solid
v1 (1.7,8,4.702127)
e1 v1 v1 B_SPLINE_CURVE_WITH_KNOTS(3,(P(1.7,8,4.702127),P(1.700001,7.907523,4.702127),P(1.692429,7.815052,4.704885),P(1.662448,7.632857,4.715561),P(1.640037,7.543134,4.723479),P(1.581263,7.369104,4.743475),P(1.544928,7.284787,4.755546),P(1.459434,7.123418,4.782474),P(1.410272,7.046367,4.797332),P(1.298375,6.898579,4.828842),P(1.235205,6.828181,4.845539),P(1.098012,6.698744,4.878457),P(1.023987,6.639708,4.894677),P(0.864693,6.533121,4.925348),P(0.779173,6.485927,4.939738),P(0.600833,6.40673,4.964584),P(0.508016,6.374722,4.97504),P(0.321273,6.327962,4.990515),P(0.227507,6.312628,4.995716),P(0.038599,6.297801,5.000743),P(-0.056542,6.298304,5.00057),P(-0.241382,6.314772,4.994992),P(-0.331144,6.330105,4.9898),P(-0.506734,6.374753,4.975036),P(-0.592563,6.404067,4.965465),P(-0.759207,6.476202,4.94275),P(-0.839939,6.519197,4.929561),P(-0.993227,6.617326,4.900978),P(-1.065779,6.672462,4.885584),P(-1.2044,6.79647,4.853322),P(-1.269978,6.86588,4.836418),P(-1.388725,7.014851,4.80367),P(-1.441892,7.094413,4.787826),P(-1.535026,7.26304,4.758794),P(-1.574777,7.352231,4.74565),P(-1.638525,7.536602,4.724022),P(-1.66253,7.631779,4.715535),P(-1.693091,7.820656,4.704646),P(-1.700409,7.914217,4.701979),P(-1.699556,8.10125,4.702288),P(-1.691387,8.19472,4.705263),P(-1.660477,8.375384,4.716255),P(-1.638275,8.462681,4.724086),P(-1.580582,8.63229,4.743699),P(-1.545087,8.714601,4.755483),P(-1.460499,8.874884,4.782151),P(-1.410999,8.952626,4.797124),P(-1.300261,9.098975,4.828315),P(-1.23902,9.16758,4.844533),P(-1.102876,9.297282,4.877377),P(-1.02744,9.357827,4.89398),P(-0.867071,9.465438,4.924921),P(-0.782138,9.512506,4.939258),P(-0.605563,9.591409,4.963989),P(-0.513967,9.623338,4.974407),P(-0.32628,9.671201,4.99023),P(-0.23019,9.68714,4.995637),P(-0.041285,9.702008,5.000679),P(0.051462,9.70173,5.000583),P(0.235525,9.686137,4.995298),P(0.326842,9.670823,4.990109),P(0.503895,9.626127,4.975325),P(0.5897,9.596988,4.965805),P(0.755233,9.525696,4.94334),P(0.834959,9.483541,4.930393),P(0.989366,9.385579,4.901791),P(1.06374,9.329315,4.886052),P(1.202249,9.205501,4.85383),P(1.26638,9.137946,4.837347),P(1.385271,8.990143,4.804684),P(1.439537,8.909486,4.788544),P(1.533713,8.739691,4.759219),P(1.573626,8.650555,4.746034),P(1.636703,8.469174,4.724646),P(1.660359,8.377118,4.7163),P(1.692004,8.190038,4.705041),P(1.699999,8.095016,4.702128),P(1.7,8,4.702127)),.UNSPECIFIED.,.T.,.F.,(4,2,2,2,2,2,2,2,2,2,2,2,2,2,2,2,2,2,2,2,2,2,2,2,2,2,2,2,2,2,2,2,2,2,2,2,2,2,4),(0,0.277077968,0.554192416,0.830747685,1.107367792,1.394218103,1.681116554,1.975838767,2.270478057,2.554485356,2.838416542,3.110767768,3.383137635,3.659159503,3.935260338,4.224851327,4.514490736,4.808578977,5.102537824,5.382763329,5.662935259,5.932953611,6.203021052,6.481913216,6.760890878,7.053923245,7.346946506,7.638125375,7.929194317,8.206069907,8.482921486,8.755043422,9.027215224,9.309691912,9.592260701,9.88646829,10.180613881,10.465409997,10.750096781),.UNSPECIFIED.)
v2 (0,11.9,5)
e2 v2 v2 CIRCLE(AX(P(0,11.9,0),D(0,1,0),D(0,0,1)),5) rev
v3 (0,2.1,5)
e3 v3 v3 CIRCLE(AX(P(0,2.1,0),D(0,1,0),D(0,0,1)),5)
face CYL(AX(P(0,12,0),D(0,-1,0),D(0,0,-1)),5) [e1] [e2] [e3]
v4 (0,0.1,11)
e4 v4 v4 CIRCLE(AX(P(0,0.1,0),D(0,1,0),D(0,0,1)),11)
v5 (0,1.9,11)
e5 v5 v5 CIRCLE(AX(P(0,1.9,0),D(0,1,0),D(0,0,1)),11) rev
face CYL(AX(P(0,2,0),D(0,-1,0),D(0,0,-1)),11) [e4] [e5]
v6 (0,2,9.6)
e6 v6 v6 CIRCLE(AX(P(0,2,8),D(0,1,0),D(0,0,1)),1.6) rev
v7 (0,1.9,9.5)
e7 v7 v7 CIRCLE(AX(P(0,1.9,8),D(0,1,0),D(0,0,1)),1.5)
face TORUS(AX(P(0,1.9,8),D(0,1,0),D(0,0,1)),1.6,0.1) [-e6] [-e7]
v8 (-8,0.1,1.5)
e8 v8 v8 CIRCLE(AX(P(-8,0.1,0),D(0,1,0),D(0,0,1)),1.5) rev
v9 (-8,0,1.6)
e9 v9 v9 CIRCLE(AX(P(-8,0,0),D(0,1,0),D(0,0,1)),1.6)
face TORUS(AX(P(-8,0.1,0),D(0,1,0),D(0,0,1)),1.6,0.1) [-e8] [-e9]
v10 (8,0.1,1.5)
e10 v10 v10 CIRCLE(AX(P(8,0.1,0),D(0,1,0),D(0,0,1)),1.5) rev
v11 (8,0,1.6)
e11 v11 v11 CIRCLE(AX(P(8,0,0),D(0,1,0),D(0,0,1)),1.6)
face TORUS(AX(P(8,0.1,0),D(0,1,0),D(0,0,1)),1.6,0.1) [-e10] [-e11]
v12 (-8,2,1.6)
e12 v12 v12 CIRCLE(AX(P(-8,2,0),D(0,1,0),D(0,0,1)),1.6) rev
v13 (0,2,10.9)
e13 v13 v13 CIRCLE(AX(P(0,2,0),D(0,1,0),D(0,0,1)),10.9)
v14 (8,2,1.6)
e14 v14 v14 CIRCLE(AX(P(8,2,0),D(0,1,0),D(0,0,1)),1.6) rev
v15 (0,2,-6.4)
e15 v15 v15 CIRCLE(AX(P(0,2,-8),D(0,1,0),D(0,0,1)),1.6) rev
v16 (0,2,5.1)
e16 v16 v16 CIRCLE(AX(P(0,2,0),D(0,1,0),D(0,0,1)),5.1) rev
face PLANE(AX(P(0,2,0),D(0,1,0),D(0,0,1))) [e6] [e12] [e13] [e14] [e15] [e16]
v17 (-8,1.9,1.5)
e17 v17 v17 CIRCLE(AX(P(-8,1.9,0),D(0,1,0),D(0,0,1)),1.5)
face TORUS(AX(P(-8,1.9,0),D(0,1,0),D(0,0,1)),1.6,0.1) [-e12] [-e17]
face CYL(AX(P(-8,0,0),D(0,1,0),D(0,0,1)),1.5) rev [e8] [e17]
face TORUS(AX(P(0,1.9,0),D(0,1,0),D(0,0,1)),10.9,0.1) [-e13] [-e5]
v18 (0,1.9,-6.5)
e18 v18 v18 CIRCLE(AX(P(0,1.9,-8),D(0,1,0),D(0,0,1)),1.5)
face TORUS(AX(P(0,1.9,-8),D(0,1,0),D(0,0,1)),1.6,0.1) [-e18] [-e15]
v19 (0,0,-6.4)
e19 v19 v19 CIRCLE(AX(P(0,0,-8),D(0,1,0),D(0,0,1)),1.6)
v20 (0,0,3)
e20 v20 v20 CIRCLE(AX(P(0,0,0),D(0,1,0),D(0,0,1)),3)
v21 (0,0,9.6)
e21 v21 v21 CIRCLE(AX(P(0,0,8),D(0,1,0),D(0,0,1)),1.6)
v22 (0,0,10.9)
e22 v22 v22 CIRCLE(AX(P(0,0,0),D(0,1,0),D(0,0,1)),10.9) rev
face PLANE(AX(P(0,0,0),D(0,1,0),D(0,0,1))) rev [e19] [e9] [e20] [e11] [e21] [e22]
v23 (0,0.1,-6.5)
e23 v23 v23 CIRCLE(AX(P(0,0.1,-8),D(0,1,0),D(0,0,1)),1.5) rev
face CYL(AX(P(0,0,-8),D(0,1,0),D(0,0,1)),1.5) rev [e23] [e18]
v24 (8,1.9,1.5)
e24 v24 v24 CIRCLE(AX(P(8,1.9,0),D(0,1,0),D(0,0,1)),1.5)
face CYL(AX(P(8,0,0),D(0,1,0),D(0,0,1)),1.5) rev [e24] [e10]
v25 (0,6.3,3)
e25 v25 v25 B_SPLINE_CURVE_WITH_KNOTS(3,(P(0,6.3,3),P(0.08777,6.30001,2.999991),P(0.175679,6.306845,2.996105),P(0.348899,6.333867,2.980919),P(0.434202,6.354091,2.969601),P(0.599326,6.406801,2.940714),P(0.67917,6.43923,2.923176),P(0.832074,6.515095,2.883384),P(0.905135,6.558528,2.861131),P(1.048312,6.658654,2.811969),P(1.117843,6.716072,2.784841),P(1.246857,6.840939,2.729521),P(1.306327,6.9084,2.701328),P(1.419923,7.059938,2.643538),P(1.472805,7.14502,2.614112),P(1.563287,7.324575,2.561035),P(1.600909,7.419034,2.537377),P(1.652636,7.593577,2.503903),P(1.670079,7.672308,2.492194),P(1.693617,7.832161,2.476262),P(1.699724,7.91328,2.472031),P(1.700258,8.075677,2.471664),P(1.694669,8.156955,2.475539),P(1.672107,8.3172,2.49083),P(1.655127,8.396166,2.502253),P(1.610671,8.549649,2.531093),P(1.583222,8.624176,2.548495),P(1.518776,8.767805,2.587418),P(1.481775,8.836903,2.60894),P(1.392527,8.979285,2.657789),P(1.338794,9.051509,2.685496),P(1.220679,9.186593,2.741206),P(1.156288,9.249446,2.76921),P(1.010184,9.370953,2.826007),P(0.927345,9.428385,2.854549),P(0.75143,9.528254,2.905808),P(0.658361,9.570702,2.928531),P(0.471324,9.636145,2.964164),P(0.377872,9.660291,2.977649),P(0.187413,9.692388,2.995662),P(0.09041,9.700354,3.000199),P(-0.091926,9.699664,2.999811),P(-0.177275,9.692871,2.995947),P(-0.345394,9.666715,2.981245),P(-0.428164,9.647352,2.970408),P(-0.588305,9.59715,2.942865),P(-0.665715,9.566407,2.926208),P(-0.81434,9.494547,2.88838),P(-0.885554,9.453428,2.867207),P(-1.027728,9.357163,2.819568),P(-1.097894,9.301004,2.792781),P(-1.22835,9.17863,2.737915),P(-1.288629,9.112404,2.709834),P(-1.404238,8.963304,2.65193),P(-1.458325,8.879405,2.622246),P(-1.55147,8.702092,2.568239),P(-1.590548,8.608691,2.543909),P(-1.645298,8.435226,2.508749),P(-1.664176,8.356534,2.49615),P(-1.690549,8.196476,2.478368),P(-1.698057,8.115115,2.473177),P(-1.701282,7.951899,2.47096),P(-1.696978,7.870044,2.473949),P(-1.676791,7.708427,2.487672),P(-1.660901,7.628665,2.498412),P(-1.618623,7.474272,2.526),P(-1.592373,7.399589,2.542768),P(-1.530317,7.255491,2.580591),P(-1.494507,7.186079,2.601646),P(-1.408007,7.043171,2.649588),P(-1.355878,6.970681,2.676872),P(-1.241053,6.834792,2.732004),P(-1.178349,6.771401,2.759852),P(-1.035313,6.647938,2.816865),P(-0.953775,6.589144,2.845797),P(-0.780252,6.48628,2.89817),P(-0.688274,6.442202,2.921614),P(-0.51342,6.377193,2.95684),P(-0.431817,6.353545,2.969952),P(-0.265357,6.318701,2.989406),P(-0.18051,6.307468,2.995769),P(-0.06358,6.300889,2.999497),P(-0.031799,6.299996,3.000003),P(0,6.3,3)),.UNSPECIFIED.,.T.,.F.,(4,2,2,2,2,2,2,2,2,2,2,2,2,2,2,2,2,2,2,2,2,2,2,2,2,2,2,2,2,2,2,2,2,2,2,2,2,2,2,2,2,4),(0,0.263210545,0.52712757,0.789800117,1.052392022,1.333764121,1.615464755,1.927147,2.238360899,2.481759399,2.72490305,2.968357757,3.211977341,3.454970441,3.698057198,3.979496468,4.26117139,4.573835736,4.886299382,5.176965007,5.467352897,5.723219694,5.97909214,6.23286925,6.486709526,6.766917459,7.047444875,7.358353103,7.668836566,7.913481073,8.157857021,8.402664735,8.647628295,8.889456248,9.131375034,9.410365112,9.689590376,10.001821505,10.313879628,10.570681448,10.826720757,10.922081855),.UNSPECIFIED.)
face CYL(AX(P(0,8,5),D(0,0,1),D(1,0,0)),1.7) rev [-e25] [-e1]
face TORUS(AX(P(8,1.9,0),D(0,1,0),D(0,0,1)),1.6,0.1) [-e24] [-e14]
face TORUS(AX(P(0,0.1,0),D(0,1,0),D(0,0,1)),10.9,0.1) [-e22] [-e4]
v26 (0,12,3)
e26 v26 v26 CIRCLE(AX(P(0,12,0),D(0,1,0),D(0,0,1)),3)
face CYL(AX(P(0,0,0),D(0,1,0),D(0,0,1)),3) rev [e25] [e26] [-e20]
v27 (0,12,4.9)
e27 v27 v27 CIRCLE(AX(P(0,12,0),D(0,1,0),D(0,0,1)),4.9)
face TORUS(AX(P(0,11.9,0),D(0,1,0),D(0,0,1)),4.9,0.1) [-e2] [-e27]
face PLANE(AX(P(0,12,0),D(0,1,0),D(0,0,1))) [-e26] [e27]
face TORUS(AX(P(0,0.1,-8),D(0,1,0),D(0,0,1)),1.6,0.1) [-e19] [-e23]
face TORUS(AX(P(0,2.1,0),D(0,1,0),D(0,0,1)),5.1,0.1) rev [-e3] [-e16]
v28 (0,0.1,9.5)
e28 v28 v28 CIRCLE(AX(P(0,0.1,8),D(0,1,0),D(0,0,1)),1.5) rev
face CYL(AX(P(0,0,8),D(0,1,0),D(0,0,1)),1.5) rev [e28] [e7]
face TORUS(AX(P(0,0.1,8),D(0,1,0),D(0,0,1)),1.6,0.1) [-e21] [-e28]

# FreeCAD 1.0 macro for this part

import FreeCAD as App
import Part
import Sketcher
Q = App.Units.Quantity


def edges_at(feature, points):
    """Names of the edges that pass closest to the given points."""
    edges = feature.Shape.Edges
    near = lambda p: min(range(len(edges)), key=lambda i: edges[i].distToShape(Part.Vertex(*p))[0])
    return sorted({f"Edge{near(p) + 1}" for p in points})

doc = App.newDocument("Part")
body = doc.addObject("PartDesign::Body", "Body")

sketch1 = body.newObject("Sketcher::SketchObject", "Sketch")
sketch1.AttachmentSupport = (doc.getObject("XZ_Plane"), [""])
sketch1.MapMode = "FlatFace"
sketch1.addGeometry(Part.Circle(App.Vector(0, 0, 0), App.Vector(0, 0, 1), 11), False)
sketch1.addConstraint(Sketcher.Constraint("Coincident", 0, 3, -1, 1))
sketch1.addConstraint(Sketcher.Constraint("Diameter", 0, Q("22 mm")))
pad1 = body.newObject("PartDesign::Pad", "Pad")
pad1.Profile = sketch1
pad1.Length = 2
pad1.Reversed = True

sketch2 = body.newObject("Sketcher::SketchObject", "Sketch001")
sketch2.AttachmentSupport = (doc.getObject("XZ_Plane"), [""])
sketch2.MapMode = "FlatFace"
sketch2.AttachmentOffset = App.Placement(App.Vector(0, 0, -2), App.Rotation())
sketch2.addGeometry(Part.Circle(App.Vector(0, 0, 0), App.Vector(0, 0, 1), 5), False)
sketch2.addConstraint(Sketcher.Constraint("Coincident", 0, 3, -1, 1))
sketch2.addConstraint(Sketcher.Constraint("Diameter", 0, Q("10 mm")))
pad2 = body.newObject("PartDesign::Pad", "Pad001")
pad2.Profile = sketch2
pad2.Length = 10
pad2.Reversed = True

sketch3 = body.newObject("Sketcher::SketchObject", "Sketch002")
sketch3.AttachmentSupport = (doc.getObject("XZ_Plane"), [""])
sketch3.MapMode = "FlatFace"
sketch3.AttachmentOffset = App.Placement(App.Vector(0, 0, -12), App.Rotation())
sketch3.addGeometry(Part.Circle(App.Vector(0, 0, 0), App.Vector(0, 0, 1), 3), False)
sketch3.addConstraint(Sketcher.Constraint("Coincident", 0, 3, -1, 1))
sketch3.addConstraint(Sketcher.Constraint("Diameter", 0, Q("6 mm")))
pocket1 = body.newObject("PartDesign::Pocket", "Pocket")
pocket1.Profile = sketch3
pocket1.Type = "ThroughAll"
pocket1.Reversed = True

sketch4 = body.newObject("Sketcher::SketchObject", "Sketch003")
sketch4.AttachmentSupport = (doc.getObject("XZ_Plane"), [""])
sketch4.MapMode = "FlatFace"
sketch4.AttachmentOffset = App.Placement(App.Vector(0, 0, -2), App.Rotation())
sketch4.addGeometry(Part.Circle(App.Vector(0, 8, 0), App.Vector(0, 0, 1), 1.5), False)
sketch4.addGeometry(Part.Circle(App.Vector(-8, 0, 0), App.Vector(0, 0, 1), 1.5), False)
sketch4.addGeometry(Part.Circle(App.Vector(0, -8, 0), App.Vector(0, 0, 1), 1.5), False)
sketch4.addGeometry(Part.Circle(App.Vector(8, 0, 0), App.Vector(0, 0, 1), 1.5), False)
sketch4.addConstraint(Sketcher.Constraint("Equal", 0, 1))
sketch4.addConstraint(Sketcher.Constraint("Equal", 1, 2))
sketch4.addConstraint(Sketcher.Constraint("Equal", 2, 3))
sketch4.addConstraint(Sketcher.Constraint("Symmetric", 0, 3, 2, 3, -1, 1))
sketch4.addConstraint(Sketcher.Constraint("Symmetric", 1, 3, 3, 3, -1, 1))
sketch4.addConstraint(Sketcher.Constraint("PointOnObject", 0, 3, -2))
sketch4.addConstraint(Sketcher.Constraint("PointOnObject", 1, 3, -1))
sketch4.addConstraint(Sketcher.Constraint("Diameter", 0, Q("3 mm")))
sketch4.addConstraint(Sketcher.Constraint("DistanceY", -1, 1, 0, 3, Q("8 mm")))
sketch4.addConstraint(Sketcher.Constraint("DistanceX", 1, 3, -1, 1, Q("8 mm")))
pocket2 = body.newObject("PartDesign::Pocket", "Pocket001")
pocket2.Profile = sketch4
pocket2.Type = "ThroughAll"
pocket2.Reversed = True
doc.recompute()

fillet = body.newObject("PartDesign::Fillet", "Fillet")
fillet.Base = (pocket2, edges_at(pocket2, [
    (0, 0, 6.5),
    (0, 2, 6.5),
    (0, 0, -11),
    (-8, 0, -1.5),
    (-8, 2, -1.5),
    (0, 0, -9.5),
    (0, 2, -9.5),
    (8, 0, -1.5),
    (8, 2, -1.5),
    (0, 2, -11),
    (0, 2, -5),
    (0, 12, -5),
]))
fillet.Radius = 0.1

sketch5 = body.newObject("Sketcher::SketchObject", "Sketch004")
sketch5.AttachmentSupport = (doc.getObject("XY_Plane"), [""])
sketch5.MapMode = "FlatFace"
sketch5.AttachmentOffset = App.Placement(App.Vector(0, 0, 5), App.Rotation())
sketch5.addGeometry(Part.Circle(App.Vector(0, 8, 0), App.Vector(0, 0, 1), 1.7), False)
sketch5.addConstraint(Sketcher.Constraint("PointOnObject", 0, 3, -2))
sketch5.addConstraint(Sketcher.Constraint("Diameter", 0, Q("3.4 mm")))
sketch5.addConstraint(Sketcher.Constraint("DistanceY", -1, 1, 0, 3, Q("8 mm")))
pocket3 = body.newObject("PartDesign::Pocket", "Pocket002")
pocket3.Profile = sketch5
pocket3.Type = "UpToFirst"

doc.recompute()
